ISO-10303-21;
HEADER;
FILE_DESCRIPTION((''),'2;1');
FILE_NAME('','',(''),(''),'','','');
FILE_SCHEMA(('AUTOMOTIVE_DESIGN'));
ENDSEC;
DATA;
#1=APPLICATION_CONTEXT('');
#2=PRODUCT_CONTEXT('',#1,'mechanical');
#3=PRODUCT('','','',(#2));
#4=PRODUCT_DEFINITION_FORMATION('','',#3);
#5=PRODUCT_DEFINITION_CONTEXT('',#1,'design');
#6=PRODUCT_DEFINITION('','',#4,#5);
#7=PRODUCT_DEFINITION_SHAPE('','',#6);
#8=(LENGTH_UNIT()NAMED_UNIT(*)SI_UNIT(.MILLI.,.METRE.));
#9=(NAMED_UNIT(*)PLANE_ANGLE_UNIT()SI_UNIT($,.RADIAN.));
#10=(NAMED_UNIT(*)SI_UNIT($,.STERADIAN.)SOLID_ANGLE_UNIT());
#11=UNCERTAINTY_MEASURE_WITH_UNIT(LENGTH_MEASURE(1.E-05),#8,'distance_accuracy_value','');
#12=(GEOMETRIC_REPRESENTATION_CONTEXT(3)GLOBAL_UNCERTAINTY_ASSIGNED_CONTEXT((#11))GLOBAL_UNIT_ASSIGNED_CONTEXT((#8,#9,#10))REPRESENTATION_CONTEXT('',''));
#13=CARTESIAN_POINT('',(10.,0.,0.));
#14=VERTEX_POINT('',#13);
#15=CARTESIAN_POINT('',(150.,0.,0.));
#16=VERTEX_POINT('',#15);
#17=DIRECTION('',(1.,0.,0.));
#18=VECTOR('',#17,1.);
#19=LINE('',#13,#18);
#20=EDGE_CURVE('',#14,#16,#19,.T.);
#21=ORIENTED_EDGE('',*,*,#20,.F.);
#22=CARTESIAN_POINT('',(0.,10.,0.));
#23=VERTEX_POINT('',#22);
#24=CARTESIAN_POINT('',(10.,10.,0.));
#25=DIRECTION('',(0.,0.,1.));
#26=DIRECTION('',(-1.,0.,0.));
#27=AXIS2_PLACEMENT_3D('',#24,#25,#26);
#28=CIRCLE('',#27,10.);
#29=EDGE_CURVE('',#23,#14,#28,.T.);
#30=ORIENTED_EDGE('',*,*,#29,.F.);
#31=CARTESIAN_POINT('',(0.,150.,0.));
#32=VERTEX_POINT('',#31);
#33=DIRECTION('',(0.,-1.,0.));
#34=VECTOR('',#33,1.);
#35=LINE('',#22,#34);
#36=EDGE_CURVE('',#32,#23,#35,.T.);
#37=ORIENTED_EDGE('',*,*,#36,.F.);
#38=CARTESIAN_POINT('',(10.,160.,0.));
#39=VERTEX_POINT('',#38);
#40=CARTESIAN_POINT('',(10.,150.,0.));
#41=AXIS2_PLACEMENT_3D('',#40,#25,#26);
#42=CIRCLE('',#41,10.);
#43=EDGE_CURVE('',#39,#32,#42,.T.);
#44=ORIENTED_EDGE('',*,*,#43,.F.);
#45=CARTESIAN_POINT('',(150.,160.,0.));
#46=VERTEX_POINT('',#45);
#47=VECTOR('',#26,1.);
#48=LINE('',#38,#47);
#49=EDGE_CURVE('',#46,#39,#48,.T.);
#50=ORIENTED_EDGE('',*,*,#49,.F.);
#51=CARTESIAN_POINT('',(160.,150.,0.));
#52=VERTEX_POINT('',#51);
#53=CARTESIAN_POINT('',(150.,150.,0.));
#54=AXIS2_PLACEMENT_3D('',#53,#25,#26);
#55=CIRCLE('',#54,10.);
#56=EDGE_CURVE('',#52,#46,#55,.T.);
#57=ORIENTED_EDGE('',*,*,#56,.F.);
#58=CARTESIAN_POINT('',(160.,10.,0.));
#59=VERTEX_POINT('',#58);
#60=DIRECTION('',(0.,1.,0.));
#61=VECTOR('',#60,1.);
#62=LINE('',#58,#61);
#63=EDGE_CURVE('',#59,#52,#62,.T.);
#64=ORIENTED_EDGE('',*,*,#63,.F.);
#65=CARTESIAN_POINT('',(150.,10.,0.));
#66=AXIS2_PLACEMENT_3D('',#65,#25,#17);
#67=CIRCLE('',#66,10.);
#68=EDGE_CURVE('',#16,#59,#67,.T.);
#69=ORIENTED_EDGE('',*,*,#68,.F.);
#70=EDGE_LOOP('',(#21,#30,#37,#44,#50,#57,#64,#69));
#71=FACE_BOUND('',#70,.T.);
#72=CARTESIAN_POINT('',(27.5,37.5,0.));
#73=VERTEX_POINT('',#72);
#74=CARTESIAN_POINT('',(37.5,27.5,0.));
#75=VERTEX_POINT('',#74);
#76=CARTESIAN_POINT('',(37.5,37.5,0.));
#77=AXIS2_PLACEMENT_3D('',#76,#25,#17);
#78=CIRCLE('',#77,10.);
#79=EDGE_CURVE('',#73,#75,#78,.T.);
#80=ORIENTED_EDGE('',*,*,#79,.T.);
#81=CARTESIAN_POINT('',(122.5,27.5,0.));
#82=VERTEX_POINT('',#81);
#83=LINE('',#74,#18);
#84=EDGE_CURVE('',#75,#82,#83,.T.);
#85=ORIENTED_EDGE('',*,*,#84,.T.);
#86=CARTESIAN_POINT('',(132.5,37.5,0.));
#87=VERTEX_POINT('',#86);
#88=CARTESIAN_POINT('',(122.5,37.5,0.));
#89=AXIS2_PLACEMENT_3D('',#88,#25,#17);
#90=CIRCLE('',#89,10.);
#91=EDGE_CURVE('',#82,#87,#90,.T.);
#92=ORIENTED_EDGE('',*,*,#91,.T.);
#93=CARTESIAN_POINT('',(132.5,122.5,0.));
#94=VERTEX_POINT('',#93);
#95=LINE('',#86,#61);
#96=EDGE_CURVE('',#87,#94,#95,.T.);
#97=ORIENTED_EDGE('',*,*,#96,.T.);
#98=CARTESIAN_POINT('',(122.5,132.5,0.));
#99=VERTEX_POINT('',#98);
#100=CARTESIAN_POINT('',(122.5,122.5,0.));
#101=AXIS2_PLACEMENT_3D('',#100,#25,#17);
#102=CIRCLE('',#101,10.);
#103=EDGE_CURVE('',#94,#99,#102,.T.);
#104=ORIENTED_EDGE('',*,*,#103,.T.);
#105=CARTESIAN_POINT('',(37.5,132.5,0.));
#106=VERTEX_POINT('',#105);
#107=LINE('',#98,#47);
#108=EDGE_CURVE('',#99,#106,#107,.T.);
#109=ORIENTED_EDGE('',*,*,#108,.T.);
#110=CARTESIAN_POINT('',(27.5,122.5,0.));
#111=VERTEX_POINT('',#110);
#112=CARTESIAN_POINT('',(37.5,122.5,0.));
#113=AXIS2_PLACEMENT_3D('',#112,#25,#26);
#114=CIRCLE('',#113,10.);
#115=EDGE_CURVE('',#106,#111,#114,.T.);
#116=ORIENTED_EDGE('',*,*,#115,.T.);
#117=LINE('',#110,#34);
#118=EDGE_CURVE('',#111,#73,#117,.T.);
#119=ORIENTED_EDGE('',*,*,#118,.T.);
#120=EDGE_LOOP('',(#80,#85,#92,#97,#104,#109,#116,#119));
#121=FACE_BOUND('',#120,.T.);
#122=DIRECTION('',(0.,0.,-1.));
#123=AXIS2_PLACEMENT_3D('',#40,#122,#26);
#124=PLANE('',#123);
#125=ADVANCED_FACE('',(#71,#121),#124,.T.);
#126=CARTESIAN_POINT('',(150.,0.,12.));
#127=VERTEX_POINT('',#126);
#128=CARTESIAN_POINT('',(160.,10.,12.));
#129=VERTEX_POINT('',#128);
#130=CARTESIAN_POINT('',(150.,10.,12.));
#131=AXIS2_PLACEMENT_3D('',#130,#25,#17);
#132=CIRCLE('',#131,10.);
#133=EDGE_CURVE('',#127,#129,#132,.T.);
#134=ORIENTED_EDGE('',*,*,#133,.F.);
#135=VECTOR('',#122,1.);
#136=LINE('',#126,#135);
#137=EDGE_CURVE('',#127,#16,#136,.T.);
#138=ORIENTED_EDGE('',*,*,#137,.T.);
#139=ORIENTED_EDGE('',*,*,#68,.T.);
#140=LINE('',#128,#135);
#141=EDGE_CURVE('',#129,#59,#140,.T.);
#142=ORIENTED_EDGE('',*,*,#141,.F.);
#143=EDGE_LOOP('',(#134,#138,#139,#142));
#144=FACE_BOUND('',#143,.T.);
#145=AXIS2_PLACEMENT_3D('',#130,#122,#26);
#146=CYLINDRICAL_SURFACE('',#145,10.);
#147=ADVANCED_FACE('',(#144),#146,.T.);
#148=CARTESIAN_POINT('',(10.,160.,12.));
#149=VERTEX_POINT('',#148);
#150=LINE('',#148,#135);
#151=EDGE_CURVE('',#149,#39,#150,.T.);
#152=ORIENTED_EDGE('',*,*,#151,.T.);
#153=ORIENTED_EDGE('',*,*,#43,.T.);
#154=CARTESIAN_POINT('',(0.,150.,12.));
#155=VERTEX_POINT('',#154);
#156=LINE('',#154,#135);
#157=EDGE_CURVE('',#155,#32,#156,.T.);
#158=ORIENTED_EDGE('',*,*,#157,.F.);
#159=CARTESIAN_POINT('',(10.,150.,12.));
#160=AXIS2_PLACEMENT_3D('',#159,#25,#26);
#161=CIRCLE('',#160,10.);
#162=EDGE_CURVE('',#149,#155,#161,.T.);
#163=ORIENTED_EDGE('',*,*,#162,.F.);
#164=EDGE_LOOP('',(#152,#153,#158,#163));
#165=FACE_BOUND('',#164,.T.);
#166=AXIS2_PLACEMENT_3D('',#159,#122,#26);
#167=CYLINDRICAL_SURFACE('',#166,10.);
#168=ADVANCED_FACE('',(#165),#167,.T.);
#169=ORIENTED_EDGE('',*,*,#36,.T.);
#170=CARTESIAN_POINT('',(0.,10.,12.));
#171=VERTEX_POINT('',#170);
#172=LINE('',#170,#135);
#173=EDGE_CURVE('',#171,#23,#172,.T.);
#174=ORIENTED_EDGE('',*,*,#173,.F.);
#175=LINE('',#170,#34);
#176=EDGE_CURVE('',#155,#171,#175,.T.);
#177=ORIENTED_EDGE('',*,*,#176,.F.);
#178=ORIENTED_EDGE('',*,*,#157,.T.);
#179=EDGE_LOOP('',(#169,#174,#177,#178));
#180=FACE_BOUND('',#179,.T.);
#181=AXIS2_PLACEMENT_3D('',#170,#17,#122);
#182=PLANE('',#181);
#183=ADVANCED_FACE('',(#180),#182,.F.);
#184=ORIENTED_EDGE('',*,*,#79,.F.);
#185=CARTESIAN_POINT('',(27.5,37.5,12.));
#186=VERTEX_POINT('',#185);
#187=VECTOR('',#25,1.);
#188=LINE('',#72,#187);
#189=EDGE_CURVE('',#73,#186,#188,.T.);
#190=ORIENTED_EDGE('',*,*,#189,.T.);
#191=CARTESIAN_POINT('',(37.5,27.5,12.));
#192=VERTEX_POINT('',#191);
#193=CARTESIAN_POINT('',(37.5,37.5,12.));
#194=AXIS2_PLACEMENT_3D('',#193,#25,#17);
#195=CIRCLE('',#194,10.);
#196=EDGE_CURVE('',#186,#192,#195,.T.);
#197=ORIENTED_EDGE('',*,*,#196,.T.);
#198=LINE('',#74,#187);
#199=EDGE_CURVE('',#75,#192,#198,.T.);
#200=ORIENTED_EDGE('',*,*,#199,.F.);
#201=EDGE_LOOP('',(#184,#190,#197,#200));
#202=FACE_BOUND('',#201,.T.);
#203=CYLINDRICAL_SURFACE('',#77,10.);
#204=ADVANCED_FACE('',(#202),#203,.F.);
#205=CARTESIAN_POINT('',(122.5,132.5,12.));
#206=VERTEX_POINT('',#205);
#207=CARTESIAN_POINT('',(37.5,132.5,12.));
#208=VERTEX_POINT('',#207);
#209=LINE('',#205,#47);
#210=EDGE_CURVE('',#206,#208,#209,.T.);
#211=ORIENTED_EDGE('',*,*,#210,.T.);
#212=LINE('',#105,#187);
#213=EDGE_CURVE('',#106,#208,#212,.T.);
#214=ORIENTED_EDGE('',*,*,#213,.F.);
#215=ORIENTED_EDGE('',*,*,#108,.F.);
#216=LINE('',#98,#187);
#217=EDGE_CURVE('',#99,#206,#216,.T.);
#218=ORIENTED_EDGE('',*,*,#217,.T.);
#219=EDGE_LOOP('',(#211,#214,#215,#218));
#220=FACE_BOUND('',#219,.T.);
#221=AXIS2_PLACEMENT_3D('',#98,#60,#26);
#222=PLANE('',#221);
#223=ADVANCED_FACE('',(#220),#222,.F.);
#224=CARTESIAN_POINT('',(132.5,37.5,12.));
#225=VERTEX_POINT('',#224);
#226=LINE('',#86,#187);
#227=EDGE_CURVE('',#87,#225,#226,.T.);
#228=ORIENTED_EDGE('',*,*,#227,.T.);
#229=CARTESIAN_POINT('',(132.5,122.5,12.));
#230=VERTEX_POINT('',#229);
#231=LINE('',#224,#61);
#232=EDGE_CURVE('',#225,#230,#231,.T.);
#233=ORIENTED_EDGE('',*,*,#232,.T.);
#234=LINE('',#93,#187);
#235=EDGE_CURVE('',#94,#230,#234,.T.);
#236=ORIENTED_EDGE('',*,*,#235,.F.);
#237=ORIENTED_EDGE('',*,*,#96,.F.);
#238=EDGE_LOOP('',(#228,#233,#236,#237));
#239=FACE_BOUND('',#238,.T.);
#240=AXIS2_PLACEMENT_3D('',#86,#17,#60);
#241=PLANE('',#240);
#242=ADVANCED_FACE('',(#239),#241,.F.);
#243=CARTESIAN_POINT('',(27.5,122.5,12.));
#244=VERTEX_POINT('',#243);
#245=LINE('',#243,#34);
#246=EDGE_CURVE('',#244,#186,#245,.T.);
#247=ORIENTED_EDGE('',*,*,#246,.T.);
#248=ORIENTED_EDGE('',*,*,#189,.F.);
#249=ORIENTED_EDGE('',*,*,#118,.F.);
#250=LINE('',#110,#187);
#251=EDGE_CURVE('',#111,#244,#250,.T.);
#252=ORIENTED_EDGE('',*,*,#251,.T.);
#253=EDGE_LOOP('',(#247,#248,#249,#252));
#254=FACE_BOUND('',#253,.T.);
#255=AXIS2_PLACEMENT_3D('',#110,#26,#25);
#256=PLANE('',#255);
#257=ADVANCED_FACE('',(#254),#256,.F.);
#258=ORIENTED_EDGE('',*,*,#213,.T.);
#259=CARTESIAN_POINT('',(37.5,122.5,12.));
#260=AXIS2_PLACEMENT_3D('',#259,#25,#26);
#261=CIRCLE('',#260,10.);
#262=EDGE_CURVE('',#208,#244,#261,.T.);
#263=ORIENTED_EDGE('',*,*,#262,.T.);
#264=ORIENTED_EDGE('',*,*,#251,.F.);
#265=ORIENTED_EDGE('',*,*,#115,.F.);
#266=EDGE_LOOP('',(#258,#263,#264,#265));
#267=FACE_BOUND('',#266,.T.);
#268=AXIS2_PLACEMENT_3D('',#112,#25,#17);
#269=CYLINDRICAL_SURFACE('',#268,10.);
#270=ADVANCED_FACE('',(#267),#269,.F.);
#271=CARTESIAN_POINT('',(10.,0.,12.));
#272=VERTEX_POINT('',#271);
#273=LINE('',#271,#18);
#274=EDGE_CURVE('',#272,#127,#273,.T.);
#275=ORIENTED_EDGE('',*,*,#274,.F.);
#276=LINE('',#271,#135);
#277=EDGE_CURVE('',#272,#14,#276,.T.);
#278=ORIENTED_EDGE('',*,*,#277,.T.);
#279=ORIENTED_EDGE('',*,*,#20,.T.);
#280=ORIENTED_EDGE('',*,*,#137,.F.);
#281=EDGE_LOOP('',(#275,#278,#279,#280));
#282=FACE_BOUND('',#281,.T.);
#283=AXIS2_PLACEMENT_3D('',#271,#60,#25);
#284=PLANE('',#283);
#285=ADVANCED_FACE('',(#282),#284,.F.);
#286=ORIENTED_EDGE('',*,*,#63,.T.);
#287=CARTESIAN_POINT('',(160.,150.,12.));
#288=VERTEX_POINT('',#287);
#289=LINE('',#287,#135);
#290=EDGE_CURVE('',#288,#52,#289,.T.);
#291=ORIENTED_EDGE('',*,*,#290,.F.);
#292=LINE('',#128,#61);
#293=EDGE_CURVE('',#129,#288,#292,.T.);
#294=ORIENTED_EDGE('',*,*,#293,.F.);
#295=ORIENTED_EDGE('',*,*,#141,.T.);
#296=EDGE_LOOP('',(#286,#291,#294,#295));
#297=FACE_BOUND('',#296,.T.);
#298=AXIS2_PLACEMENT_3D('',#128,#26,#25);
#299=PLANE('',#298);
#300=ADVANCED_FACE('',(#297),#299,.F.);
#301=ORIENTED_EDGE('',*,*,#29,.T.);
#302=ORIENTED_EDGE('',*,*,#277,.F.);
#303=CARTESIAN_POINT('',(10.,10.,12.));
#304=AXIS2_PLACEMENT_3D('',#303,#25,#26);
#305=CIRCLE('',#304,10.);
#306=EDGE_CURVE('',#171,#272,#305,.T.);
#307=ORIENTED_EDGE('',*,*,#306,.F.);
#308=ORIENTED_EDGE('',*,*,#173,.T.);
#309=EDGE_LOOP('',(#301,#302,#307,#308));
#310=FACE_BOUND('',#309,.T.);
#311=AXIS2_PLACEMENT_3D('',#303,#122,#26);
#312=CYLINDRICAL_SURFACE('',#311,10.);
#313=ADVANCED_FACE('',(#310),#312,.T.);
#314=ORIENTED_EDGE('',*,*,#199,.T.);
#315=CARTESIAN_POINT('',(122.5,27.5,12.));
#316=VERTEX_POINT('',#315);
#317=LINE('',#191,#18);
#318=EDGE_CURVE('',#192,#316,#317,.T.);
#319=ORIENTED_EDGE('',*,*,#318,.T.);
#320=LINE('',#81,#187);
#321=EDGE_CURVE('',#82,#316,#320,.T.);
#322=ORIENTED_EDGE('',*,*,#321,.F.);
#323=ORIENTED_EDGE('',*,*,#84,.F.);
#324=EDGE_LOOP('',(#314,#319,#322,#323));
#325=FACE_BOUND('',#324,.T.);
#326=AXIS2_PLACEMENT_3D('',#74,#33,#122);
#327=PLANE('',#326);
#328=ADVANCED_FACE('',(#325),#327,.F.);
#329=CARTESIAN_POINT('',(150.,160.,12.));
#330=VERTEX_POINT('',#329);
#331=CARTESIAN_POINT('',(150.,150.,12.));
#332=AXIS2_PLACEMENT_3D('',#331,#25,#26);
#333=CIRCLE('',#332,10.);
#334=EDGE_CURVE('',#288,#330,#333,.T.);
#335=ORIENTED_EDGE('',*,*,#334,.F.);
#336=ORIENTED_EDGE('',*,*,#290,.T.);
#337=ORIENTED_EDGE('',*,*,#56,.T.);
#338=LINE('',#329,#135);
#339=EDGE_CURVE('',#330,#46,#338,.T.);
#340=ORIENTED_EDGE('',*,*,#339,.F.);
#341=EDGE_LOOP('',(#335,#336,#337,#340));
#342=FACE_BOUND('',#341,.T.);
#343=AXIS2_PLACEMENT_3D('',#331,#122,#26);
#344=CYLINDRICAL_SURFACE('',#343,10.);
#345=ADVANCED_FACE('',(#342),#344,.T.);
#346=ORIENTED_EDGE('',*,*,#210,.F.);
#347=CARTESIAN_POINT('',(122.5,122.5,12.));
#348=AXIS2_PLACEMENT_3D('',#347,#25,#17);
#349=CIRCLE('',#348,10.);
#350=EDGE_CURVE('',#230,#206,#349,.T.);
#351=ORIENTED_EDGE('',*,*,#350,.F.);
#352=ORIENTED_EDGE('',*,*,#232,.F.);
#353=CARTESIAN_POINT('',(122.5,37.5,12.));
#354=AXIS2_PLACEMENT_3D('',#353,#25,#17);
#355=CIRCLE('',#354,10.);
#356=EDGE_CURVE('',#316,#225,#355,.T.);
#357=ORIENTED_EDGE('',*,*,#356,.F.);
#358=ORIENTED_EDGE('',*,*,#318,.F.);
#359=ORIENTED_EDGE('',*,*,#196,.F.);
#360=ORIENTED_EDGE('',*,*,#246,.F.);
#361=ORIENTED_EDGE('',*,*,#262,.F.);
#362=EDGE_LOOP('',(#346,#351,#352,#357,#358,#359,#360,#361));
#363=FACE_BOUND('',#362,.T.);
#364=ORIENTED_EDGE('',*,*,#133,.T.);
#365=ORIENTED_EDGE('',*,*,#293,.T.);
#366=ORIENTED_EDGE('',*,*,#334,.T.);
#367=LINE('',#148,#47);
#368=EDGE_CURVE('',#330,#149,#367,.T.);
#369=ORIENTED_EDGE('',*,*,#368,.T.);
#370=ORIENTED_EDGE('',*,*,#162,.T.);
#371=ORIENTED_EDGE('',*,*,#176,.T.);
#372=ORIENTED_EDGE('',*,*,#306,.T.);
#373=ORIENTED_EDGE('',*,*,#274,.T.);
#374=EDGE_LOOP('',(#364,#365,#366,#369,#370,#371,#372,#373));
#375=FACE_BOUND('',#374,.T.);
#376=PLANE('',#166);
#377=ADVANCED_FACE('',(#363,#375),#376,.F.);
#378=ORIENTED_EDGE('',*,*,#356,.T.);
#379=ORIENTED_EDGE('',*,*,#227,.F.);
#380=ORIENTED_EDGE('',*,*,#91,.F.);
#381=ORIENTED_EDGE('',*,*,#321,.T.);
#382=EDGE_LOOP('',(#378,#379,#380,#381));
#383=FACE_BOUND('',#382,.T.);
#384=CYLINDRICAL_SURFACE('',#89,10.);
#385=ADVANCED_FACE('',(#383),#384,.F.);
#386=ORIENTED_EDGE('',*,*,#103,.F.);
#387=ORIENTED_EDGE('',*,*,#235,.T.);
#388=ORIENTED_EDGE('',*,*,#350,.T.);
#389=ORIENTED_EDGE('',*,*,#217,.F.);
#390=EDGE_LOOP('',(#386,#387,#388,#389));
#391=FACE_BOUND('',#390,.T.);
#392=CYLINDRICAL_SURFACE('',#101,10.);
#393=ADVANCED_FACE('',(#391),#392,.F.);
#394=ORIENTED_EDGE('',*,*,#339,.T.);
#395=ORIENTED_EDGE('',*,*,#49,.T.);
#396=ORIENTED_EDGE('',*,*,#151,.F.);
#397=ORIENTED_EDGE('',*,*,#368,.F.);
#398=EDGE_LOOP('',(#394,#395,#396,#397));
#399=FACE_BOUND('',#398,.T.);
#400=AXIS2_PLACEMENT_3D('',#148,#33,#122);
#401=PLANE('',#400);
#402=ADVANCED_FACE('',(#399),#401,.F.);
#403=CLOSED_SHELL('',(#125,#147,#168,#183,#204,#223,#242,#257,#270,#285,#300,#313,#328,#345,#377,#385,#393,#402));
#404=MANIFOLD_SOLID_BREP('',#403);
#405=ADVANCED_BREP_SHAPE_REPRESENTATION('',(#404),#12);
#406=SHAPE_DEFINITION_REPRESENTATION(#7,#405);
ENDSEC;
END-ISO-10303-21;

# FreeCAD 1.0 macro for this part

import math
import FreeCAD as App
import Part
import Sketcher

doc = App.newDocument("Part")
body = doc.addObject("PartDesign::Body", "Body")

# Sketch on XY plane
sketch1 = body.newObject("Sketcher::SketchObject", "Sketch")
sketch1.AttachmentSupport = (doc.getObject("XY_Plane"), [""])
sketch1.MapMode = "FlatFace"
sketch1.addGeometry([
    Part.LineSegment(App.Vector(10, 0, 0), App.Vector(150, 0, 0)),  # 0
    Part.ArcOfCircle(Part.Circle(App.Vector(150, 10, 0), App.Vector(0, 0, 1), 10), math.radians(-90), math.radians(0)),  # 1
    Part.LineSegment(App.Vector(160, 10, 0), App.Vector(160, 150, 0)),  # 2
    Part.ArcOfCircle(Part.Circle(App.Vector(150, 150, 0), App.Vector(0, 0, 1), 10), math.radians(0), math.radians(90)),  # 3
    Part.LineSegment(App.Vector(150, 160, 0), App.Vector(10, 160, 0)),  # 4
    Part.ArcOfCircle(Part.Circle(App.Vector(10, 150, 0), App.Vector(0, 0, 1), 10), math.radians(90), math.radians(180)),  # 5
    Part.LineSegment(App.Vector(0, 150, 0), App.Vector(0, 10, 0)),  # 6
    Part.ArcOfCircle(Part.Circle(App.Vector(10, 10, 0), App.Vector(0, 0, 1), 10), math.radians(180), math.radians(270)),  # 7
], False)
sketch1.addConstraint([
    Sketcher.Constraint("Tangent", 0, 2, 1, 1),
    Sketcher.Constraint("Tangent", 1, 2, 2, 1),
    Sketcher.Constraint("Tangent", 2, 2, 3, 1),
    Sketcher.Constraint("Tangent", 3, 2, 4, 1),
    Sketcher.Constraint("Tangent", 4, 2, 5, 1),
    Sketcher.Constraint("Tangent", 5, 2, 6, 1),
    Sketcher.Constraint("Tangent", 6, 2, 7, 1),
    Sketcher.Constraint("Tangent", 7, 2, 0, 1),
    Sketcher.Constraint("Horizontal", 0),
    Sketcher.Constraint("Vertical", 2),
    Sketcher.Constraint("Horizontal", 4),
    Sketcher.Constraint("Vertical", 6),
    Sketcher.Constraint("Equal", 1, 3),
    Sketcher.Constraint("Equal", 3, 5),
    Sketcher.Constraint("Equal", 5, 7),
    Sketcher.Constraint("PointOnObject", 0, 2, -1),
    Sketcher.Constraint("PointOnObject", 5, 2, -2),
    Sketcher.Constraint("Equal", 4, 2),
    Sketcher.Constraint("Radius", 1, 10.0),
    Sketcher.Constraint("DistanceX", 0, 1, 0, 2, 140.0),
])
pad1 = body.newObject("PartDesign::Pad", "Pad")
pad1.Profile = sketch1
pad1.Length = 12

# Sketch on XY plane
sketch2 = body.newObject("Sketcher::SketchObject", "Sketch001")
sketch2.AttachmentSupport = (doc.getObject("XY_Plane"), [""])
sketch2.MapMode = "FlatFace"
sketch2.AttachmentOffset = App.Placement(App.Vector(0, 0, 12), App.Rotation())
sketch2.addGeometry([
    Part.LineSegment(App.Vector(28, 122, 0), App.Vector(28, 38, 0)),  # 0
    Part.ArcOfCircle(Part.Circle(App.Vector(38, 38, 0), App.Vector(0, 0, 1), 10), math.radians(180), math.radians(270)),  # 1
    Part.LineSegment(App.Vector(38, 28, 0), App.Vector(122, 28, 0)),  # 2
    Part.ArcOfCircle(Part.Circle(App.Vector(122, 38, 0), App.Vector(0, 0, 1), 10), math.radians(-90), math.radians(0)),  # 3
    Part.LineSegment(App.Vector(132, 38, 0), App.Vector(132, 122, 0)),  # 4
    Part.ArcOfCircle(Part.Circle(App.Vector(122, 122, 0), App.Vector(0, 0, 1), 10), math.radians(0), math.radians(90)),  # 5
    Part.LineSegment(App.Vector(122, 132, 0), App.Vector(38, 132, 0)),  # 6
    Part.ArcOfCircle(Part.Circle(App.Vector(38, 122, 0), App.Vector(0, 0, 1), 10), math.radians(90), math.radians(180)),  # 7
], False)
sketch2.addConstraint([
    Sketcher.Constraint("Tangent", 0, 2, 1, 1),
    Sketcher.Constraint("Tangent", 1, 2, 2, 1),
    Sketcher.Constraint("Tangent", 2, 2, 3, 1),
    Sketcher.Constraint("Tangent", 3, 2, 4, 1),
    Sketcher.Constraint("Tangent", 4, 2, 5, 1),
    Sketcher.Constraint("Tangent", 5, 2, 6, 1),
    Sketcher.Constraint("Tangent", 6, 2, 7, 1),
    Sketcher.Constraint("Tangent", 7, 2, 0, 1),
    Sketcher.Constraint("Vertical", 0),
    Sketcher.Constraint("Horizontal", 2),
    Sketcher.Constraint("Vertical", 4),
    Sketcher.Constraint("Horizontal", 6),
    Sketcher.Constraint("Equal", 1, 3),
    Sketcher.Constraint("Equal", 3, 5),
    Sketcher.Constraint("Equal", 5, 7),
    Sketcher.Constraint("Equal", 6, 0),
    Sketcher.Constraint("Radius", 1, 10.0),
    Sketcher.Constraint("DistanceX", 2, 1, 2, 2, 85.0),
    Sketcher.Constraint("DistanceX", -1, 1, 1, 3, 37.5),
    Sketcher.Constraint("DistanceY", -1, 1, 1, 3, 37.5),
])
pocket1 = body.newObject("PartDesign::Pocket", "Pocket")
pocket1.Profile = sketch2
pocket1.Type = "ThroughAll"

doc.recompute()
